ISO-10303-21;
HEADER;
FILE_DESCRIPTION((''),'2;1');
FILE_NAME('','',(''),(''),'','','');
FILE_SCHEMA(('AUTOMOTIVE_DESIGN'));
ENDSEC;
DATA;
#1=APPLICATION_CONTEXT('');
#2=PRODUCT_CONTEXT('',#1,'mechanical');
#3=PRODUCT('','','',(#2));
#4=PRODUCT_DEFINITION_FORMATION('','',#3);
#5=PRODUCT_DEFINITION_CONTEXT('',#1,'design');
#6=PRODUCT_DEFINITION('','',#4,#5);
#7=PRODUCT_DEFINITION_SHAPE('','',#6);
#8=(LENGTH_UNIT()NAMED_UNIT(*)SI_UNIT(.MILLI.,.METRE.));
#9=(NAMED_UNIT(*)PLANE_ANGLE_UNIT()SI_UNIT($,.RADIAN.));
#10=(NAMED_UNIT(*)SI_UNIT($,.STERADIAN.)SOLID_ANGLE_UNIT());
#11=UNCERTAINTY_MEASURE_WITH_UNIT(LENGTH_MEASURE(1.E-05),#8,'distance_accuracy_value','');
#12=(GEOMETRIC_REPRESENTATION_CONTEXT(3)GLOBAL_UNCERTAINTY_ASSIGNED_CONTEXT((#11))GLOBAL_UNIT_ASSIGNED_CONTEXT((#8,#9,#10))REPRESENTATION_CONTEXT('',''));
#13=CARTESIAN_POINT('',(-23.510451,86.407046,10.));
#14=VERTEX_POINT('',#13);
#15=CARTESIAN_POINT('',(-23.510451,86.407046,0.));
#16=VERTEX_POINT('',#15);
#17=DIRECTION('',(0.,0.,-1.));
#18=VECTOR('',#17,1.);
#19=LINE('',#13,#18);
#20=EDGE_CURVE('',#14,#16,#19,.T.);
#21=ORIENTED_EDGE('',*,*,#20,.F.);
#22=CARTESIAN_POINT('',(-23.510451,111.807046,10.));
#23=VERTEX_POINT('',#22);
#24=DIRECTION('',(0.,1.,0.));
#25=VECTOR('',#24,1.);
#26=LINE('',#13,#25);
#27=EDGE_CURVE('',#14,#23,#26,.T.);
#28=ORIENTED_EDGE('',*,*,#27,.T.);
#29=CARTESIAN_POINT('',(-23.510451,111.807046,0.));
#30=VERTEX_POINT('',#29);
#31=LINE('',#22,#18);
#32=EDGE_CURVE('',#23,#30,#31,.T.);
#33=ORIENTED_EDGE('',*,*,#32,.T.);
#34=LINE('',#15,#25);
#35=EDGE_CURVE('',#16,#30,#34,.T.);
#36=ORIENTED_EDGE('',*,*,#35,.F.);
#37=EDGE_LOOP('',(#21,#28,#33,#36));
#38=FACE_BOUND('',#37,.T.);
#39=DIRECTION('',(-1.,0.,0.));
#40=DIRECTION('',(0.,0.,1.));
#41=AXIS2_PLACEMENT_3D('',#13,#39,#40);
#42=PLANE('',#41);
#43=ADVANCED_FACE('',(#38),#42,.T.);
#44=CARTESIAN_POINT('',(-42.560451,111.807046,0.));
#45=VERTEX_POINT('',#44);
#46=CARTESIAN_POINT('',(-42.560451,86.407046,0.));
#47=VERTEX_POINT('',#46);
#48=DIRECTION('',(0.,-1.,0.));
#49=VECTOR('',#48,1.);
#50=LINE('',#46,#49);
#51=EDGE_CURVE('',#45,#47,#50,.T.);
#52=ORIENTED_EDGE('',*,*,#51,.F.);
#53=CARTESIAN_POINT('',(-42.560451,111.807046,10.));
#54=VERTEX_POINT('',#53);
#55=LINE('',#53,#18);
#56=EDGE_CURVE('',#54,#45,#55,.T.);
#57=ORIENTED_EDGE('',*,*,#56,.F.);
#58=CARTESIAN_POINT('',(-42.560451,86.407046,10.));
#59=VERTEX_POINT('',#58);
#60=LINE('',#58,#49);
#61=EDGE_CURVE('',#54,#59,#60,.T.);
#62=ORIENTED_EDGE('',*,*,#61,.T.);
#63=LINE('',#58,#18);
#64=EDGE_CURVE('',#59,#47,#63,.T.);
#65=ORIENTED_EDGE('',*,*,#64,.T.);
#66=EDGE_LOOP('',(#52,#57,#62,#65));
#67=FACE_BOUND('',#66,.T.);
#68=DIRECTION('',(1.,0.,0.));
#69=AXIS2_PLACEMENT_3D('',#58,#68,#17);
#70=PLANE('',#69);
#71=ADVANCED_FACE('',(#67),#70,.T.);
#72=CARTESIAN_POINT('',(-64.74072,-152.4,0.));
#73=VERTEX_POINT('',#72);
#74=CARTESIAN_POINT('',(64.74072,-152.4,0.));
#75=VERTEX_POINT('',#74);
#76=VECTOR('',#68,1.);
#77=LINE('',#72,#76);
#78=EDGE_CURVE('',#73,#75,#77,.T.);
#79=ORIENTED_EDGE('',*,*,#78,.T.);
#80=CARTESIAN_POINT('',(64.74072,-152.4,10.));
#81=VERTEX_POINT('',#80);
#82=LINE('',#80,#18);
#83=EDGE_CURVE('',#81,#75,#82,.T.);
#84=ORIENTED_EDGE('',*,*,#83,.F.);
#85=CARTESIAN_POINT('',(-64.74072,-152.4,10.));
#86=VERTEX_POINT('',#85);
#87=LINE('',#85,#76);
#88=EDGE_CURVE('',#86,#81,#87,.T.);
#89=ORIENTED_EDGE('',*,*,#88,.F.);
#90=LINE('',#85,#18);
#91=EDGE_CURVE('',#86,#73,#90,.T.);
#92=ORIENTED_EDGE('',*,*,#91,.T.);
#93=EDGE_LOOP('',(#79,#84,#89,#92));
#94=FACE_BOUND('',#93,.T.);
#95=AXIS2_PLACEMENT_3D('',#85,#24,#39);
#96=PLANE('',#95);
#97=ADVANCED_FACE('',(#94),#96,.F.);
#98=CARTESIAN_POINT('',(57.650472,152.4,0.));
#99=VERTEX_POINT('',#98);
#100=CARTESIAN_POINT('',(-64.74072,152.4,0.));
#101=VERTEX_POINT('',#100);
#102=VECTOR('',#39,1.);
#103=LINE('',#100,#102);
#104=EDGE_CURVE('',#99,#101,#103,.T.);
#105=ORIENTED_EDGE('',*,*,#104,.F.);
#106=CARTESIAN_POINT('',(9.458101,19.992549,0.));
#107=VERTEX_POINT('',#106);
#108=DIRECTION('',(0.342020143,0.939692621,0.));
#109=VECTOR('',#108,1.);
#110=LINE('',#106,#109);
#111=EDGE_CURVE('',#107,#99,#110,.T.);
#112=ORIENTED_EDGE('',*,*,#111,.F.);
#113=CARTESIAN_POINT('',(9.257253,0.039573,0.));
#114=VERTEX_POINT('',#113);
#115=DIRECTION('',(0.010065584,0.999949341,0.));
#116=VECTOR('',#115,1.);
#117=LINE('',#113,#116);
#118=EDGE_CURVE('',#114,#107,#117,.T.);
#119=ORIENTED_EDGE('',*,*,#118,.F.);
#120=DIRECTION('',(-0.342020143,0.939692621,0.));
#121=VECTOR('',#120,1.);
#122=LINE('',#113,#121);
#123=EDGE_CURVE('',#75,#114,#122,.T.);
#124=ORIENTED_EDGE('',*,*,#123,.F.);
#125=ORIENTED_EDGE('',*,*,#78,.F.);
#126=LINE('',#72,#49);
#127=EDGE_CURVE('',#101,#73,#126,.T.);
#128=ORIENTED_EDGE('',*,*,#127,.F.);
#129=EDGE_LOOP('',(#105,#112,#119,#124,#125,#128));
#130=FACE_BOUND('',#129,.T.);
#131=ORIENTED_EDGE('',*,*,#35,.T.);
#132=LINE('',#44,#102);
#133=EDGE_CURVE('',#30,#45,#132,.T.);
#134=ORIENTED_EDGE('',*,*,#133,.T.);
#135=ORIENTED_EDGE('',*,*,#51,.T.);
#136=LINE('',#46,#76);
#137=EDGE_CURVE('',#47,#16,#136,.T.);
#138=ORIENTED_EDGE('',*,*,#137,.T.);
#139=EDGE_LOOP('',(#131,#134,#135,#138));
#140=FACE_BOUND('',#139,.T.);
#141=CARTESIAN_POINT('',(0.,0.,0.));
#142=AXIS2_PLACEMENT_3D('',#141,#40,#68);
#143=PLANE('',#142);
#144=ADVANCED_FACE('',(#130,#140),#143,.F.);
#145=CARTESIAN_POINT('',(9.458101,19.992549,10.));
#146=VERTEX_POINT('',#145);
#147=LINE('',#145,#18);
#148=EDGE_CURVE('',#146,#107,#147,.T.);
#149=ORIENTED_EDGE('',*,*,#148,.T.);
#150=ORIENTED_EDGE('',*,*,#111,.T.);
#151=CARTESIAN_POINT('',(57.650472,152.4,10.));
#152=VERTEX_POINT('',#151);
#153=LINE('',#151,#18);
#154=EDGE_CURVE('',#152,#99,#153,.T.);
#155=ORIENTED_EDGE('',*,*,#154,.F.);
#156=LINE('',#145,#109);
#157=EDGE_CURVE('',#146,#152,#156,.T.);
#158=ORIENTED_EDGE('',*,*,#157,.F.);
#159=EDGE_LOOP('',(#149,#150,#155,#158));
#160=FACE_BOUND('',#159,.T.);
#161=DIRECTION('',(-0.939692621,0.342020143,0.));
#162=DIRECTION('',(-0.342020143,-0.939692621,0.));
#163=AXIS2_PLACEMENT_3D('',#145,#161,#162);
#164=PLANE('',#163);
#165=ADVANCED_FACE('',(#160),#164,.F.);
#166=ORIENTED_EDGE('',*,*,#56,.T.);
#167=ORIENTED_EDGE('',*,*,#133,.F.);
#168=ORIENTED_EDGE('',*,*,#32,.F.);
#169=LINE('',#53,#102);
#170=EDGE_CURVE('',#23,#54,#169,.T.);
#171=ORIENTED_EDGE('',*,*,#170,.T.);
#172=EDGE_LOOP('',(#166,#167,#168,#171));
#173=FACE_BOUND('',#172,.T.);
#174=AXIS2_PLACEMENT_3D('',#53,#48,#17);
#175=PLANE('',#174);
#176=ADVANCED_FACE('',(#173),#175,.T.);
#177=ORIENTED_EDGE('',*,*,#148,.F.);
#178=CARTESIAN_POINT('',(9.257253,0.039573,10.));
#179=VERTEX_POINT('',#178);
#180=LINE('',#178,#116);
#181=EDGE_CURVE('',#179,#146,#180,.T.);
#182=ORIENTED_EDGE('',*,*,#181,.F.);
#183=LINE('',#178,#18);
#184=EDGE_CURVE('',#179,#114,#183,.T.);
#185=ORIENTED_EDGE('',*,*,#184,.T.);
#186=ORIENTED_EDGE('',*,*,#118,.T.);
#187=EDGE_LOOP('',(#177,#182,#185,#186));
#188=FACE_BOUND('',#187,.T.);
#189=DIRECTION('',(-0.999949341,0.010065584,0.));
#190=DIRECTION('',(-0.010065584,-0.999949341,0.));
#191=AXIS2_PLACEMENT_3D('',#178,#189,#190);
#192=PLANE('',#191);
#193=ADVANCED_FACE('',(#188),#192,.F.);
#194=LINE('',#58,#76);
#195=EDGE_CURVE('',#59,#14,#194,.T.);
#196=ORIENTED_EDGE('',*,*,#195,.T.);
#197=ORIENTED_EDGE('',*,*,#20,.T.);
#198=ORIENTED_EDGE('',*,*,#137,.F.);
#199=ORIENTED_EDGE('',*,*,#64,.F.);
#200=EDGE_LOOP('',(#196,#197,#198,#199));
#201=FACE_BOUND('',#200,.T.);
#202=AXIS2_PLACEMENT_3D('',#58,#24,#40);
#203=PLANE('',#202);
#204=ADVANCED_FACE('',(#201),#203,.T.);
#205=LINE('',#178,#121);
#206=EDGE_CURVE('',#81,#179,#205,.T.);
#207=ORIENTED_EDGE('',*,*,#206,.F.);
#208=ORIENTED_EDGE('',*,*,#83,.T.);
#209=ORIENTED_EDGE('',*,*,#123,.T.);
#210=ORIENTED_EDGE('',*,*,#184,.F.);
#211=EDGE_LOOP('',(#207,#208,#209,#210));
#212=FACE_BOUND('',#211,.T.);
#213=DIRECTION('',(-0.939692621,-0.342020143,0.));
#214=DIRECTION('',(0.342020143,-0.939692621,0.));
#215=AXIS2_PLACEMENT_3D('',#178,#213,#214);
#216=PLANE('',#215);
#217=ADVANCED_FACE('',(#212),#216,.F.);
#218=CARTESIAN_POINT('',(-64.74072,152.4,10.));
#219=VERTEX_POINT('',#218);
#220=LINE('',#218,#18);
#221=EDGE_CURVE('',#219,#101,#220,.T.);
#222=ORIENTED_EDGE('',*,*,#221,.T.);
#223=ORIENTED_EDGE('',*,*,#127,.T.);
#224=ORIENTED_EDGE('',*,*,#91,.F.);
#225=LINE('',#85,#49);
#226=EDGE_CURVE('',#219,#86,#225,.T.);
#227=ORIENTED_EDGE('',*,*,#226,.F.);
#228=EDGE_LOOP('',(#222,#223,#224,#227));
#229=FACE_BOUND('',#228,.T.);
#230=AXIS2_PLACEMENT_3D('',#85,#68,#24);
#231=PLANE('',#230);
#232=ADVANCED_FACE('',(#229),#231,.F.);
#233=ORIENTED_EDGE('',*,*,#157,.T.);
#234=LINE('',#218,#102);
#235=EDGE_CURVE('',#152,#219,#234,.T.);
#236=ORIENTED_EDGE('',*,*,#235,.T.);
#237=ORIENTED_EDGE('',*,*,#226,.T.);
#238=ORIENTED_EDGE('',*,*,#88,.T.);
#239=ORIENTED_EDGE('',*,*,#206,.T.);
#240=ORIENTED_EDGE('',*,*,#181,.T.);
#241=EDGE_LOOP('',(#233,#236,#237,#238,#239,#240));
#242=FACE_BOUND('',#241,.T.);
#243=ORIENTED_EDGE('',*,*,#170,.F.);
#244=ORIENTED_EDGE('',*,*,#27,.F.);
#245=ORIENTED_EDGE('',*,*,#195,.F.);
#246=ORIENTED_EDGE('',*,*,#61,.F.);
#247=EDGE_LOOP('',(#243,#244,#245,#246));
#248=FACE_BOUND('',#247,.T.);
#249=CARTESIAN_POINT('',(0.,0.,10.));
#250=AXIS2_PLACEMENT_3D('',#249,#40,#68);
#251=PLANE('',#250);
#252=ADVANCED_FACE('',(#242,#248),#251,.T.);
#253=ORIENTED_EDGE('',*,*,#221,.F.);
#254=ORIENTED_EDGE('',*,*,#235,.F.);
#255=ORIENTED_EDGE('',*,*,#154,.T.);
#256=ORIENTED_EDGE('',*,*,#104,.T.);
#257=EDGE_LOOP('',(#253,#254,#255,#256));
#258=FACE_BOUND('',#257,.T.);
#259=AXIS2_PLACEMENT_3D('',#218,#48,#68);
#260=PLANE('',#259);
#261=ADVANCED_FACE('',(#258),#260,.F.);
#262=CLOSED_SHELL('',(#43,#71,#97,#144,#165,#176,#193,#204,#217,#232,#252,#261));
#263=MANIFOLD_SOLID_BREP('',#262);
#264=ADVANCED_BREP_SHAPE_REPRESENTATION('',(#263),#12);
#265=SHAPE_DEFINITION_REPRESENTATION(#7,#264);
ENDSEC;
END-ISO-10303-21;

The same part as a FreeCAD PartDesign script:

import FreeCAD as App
import Part
import Sketcher
from FreeCAD import Vector
Q = App.Units.Quantity

doc = App.newDocument("Part")
body = doc.addObject("PartDesign::Body", "Body")

# Sketch on XY plane
sketch1 = body.newObject("Sketcher::SketchObject", "Sketch")
sketch1.AttachmentSupport = (doc.getObject("XY_Plane"), [""])
sketch1.MapMode = "FlatFace"
sketch1.addGeometry(Part.LineSegment(Vector(-64.74072, 152.4, 0), Vector(-64.74072, -152.4, 0)), False)
sketch1.addGeometry(Part.LineSegment(Vector(-64.74072, -152.4, 0), Vector(64.74072, -152.4, 0)), False)
sketch1.addGeometry(Part.LineSegment(Vector(64.74072, -152.4, 0), Vector(9.257253, 0.039573, 0)), False)
sketch1.addGeometry(Part.LineSegment(Vector(9.257253, 0.039573, 0), Vector(9.458101, 19.992549, 0)), False)
sketch1.addGeometry(Part.LineSegment(Vector(9.458101, 19.992549, 0), Vector(57.650472, 152.4, 0)), False)
sketch1.addGeometry(Part.LineSegment(Vector(57.650472, 152.4, 0), Vector(-64.74072, 152.4, 0)), False)
sketch1.addGeometry(Part.LineSegment(Vector(-23.510451, 86.407046, 0), Vector(-42.560451, 86.407046, 0)), False)
sketch1.addGeometry(Part.LineSegment(Vector(-42.560451, 86.407046, 0), Vector(-42.560451, 111.807046, 0)), False)
sketch1.addGeometry(Part.LineSegment(Vector(-42.560451, 111.807046, 0), Vector(-23.510451, 111.807046, 0)), False)
sketch1.addGeometry(Part.LineSegment(Vector(-23.510451, 111.807046, 0), Vector(-23.510451, 86.407046, 0)), False)
sketch1.addConstraint(Sketcher.Constraint("Coincident", 0, 2, 1, 1))
sketch1.addConstraint(Sketcher.Constraint("Coincident", 1, 2, 2, 1))
sketch1.addConstraint(Sketcher.Constraint("Coincident", 2, 2, 3, 1))
sketch1.addConstraint(Sketcher.Constraint("Coincident", 3, 2, 4, 1))
sketch1.addConstraint(Sketcher.Constraint("Coincident", 4, 2, 5, 1))
sketch1.addConstraint(Sketcher.Constraint("Coincident", 5, 2, 0, 1))
sketch1.addConstraint(Sketcher.Constraint("Coincident", 6, 2, 7, 1))
sketch1.addConstraint(Sketcher.Constraint("Coincident", 7, 2, 8, 1))
sketch1.addConstraint(Sketcher.Constraint("Coincident", 8, 2, 9, 1))
sketch1.addConstraint(Sketcher.Constraint("Coincident", 9, 2, 6, 1))
sketch1.addConstraint(Sketcher.Constraint("Vertical", 0))
sketch1.addConstraint(Sketcher.Constraint("Horizontal", 1))
sketch1.addConstraint(Sketcher.Constraint("Horizontal", 5))
sketch1.addConstraint(Sketcher.Constraint("Horizontal", 6))
sketch1.addConstraint(Sketcher.Constraint("Vertical", 7))
sketch1.addConstraint(Sketcher.Constraint("Horizontal", 8))
sketch1.addConstraint(Sketcher.Constraint("Vertical", 9))
sketch1.addConstraint(Sketcher.Constraint("Symmetric", 1, 2, 5, 2, -1, 1))
sketch1.addConstraint(Sketcher.Constraint("DistanceY", 0, 2, 0, 1, Q("12 in")))
sketch1.addConstraint(Sketcher.Constraint("DistanceY", 7, 1, 7, 2, Q("1 in")))
sketch1.addConstraint(Sketcher.Constraint("Angle", 2, Q("110 deg")))
sketch1.addConstraint(Sketcher.Constraint("Angle", 4, Q("70 deg")))
sketch1.addConstraint(Sketcher.Constraint("DistanceX", 6, 2, 6, 1, Q("0.75 in")))
sketch1.addConstraint(Sketcher.Constraint("DistanceX", 1, 1, 1, 2, 129.48144))
sketch1.addConstraint(Sketcher.Constraint("DistanceX", -1, 1, 3, 2, 9.458101))
sketch1.addConstraint(Sketcher.Constraint("DistanceX", 5, 2, 5, 1, 122.391193))
sketch1.addConstraint(Sketcher.Constraint("DistanceX", 6, 2, -1, 1, 42.560451))
sketch1.addConstraint(Sketcher.Constraint("DistanceX", 2, 2, 3, 2, 0.200849))
sketch1.addConstraint(Sketcher.Constraint("DistanceY", -1, 1, 6, 2, 86.407046))
pad1 = body.newObject("PartDesign::Pad", "Pad")
pad1.Profile = sketch1
pad1.Length = 10

doc.recompute()
